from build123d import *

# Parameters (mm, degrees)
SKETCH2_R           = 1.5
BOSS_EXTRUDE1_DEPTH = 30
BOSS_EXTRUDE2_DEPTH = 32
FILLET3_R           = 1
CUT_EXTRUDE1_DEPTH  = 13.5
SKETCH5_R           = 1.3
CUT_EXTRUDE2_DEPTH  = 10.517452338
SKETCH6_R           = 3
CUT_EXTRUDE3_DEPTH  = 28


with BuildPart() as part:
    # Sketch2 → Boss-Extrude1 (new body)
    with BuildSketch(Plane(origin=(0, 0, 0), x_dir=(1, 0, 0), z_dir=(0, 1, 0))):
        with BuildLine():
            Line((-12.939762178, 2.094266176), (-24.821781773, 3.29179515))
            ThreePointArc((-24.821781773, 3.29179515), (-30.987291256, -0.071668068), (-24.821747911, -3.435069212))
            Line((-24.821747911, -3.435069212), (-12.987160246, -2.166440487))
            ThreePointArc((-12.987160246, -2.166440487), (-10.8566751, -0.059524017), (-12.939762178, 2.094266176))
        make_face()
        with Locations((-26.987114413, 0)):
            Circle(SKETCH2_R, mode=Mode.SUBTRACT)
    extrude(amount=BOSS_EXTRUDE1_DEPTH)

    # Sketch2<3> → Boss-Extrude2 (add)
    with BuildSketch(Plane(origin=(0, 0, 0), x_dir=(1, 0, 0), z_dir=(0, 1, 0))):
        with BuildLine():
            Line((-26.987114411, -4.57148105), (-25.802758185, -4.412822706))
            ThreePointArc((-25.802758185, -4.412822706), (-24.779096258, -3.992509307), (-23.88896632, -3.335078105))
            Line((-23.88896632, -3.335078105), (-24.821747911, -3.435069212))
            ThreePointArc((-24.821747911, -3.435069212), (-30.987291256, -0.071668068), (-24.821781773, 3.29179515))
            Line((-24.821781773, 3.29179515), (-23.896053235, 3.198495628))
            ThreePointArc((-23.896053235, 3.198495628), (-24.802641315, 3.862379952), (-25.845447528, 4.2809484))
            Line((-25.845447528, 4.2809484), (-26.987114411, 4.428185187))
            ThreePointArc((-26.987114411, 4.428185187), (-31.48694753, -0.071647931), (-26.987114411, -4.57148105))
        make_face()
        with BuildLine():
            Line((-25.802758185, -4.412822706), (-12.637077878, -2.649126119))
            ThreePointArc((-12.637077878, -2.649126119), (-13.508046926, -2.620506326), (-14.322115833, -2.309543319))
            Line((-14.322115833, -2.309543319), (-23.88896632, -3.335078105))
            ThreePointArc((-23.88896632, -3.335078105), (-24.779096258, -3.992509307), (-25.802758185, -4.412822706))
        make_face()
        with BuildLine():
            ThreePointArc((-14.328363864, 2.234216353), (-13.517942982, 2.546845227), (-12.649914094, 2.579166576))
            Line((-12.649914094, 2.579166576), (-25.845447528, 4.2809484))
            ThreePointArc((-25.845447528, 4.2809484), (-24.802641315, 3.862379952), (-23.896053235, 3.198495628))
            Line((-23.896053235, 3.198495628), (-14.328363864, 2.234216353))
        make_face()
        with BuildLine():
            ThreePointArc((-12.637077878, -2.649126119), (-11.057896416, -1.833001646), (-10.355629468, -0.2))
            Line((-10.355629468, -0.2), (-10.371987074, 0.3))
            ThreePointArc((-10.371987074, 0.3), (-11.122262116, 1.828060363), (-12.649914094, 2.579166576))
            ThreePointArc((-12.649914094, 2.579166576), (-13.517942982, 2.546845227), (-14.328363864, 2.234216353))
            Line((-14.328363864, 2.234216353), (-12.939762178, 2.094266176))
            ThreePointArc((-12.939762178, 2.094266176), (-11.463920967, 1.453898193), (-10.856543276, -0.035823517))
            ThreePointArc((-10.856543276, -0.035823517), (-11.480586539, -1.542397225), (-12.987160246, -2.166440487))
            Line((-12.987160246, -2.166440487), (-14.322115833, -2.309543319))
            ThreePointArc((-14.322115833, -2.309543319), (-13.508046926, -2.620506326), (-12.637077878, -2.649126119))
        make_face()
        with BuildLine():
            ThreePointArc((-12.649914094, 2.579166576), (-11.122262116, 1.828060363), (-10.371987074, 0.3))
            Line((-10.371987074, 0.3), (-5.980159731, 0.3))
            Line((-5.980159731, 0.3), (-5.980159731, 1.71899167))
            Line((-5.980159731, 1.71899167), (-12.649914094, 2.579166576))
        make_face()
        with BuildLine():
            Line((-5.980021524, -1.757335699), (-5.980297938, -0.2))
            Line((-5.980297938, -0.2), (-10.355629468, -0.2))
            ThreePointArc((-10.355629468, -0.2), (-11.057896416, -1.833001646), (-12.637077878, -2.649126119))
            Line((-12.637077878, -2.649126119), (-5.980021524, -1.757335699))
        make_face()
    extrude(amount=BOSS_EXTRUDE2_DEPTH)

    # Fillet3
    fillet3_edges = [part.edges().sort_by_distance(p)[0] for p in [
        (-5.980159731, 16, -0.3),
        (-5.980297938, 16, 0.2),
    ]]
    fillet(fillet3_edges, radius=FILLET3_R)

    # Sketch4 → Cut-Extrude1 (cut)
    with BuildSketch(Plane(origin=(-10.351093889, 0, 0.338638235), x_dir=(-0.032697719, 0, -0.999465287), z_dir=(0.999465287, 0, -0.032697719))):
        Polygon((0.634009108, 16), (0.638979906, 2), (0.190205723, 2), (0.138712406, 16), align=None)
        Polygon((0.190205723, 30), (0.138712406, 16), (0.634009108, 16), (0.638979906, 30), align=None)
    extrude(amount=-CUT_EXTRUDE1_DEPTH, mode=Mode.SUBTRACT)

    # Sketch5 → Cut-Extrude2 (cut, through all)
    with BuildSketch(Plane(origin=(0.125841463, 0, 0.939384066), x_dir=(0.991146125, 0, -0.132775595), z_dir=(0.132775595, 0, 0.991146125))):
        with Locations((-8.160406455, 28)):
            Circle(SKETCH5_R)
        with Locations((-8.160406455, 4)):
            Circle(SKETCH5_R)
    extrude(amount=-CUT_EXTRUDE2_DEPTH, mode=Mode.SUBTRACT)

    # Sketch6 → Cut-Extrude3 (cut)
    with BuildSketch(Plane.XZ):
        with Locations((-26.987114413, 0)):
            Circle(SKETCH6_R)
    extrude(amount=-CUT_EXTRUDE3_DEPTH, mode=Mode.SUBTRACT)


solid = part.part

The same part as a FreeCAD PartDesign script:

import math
import FreeCAD as App
import Part
import Sketcher
from FreeCAD import Vector


def edges_at(feature, points):
    """Names of the edges that pass closest to the given points."""
    edges = feature.Shape.Edges
    near = lambda p: min(range(len(edges)), key=lambda i: edges[i].distToShape(Part.Vertex(*p))[0])
    return sorted({f"Edge{near(p) + 1}" for p in points})

doc = App.newDocument("Part")
body = doc.addObject("PartDesign::Body", "Body")

sketch1 = body.newObject("Sketcher::SketchObject", "Sketch")
sketch1.AttachmentSupport = (doc.getObject("XZ_Plane"), [""])
sketch1.MapMode = "FlatFace"
sketch1.addGeometry([
    Part.LineSegment(Vector(-12.9, -2.1, 0), Vector(-24.8, -3.3, 0)),
    Part.ArcOfCircle(Part.Circle(Vector(-27, 0.1, 0), Vector(0, 0, 1), 4), math.radians(57), math.radians(303)),
    Part.LineSegment(Vector(-24.8, 3.4, 0), Vector(-13, 2.2, 0)),
    Part.ArcOfCircle(Part.Circle(Vector(-13, 0, 0), Vector(0, 0, 1), 2.1), math.radians(-89), math.radians(90)),
    Part.Circle(Vector(-27, 0, 0), Vector(0, 0, 1), 1.5),
], False)
sketch1.addConstraint([
    Sketcher.Constraint("Coincident", 0, 2, 1, 2),
    Sketcher.Constraint("Coincident", 1, 1, 2, 1),
    Sketcher.Constraint("Coincident", 2, 2, 3, 2),
    Sketcher.Constraint("Coincident", 3, 1, 0, 1),
    Sketcher.Constraint("PointOnObject", 4, 3, -1),
    Sketcher.Constraint("Vertical", 1, 3, 4, 3),
    Sketcher.Constraint("Vertical", 3, 3, 2, 2),
    Sketcher.Constraint("Diameter", 4, 3.0),
    Sketcher.Constraint("Radius", 1, 4.000177),
    Sketcher.Constraint("Radius", 3, 2.130617),
    Sketcher.Constraint("DistanceX", 3, 3, 3, 1, 0.047398),
    Sketcher.Constraint("Distance", 2, 11.90239),
    Sketcher.Constraint("DistanceX", 3, 3, -1, 1, 12.98716),
    Sketcher.Constraint("DistanceX", 0, 2, -1, 1, 24.821782),
    Sketcher.Constraint("DistanceY", -1, 1, 1, 1, 3.435069),
    Sketcher.Constraint("DistanceY", -1, 1, 2, 2, 2.16644),
    Sketcher.Constraint("DistanceY", 0, 2, 3, 3, 3.327619),
])
pad1 = body.newObject("PartDesign::Pad", "Pad")
pad1.Profile = sketch1
pad1.Length = 30
pad1.Reversed = True

sketch2 = body.newObject("Sketcher::SketchObject", "Sketch001")
sketch2.AttachmentSupport = (doc.getObject("XZ_Plane"), [""])
sketch2.MapMode = "FlatFace"
sketch2.addGeometry([
    Part.LineSegment(Vector(-26.987114, 4.571481, 0), Vector(-25.802758, 4.412823, 0)),
    Part.LineSegment(Vector(-25.802758, 4.412823, 0), Vector(-12.637078, 2.649126, 0)),
    Part.LineSegment(Vector(-12.637078, 2.649126, 0), Vector(-5.980022, 1.757336, 0)),
    Part.LineSegment(Vector(-5.980022, 1.757336, 0), Vector(-5.980298, 0.2, 0)),
    Part.LineSegment(Vector(-5.980298, 0.2, 0), Vector(-10.355629, 0.2, 0)),
    Part.LineSegment(Vector(-10.355629, 0.2, 0), Vector(-10.371987, -0.3, 0)),
    Part.LineSegment(Vector(-10.371987, -0.3, 0), Vector(-5.98016, -0.3, 0)),
    Part.LineSegment(Vector(-5.98016, -0.3, 0), Vector(-5.98016, -1.718992, 0)),
    Part.LineSegment(Vector(-5.98016, -1.718992, 0), Vector(-12.649914, -2.579167, 0)),
    Part.LineSegment(Vector(-12.649914, -2.579167, 0), Vector(-25.845448, -4.280948, 0)),
    Part.LineSegment(Vector(-25.845448, -4.280948, 0), Vector(-26.987114, -4.428185, 0)),
    Part.ArcOfCircle(Part.Circle(Vector(-26.987114, 0.071648, 0), Vector(0, 0, 1), 4.499833), math.radians(90), math.radians(270)),
    Part.LineSegment(Vector(-14.322116, 2.309543, 0), Vector(-23.888966, 3.335078, 0)),
    Part.LineSegment(Vector(-23.888966, 3.335078, 0), Vector(-24.821748, 3.435069, 0)),
    Part.ArcOfCircle(Part.Circle(Vector(-26.987114, 0.071648, 0), Vector(0, 0, 1), 4.000177), math.radians(57.226615), math.radians(302.772808)),
    Part.LineSegment(Vector(-24.821782, -3.291795, 0), Vector(-23.896053, -3.198496, 0)),
    Part.LineSegment(Vector(-23.896053, -3.198496, 0), Vector(-14.328364, -2.234216, 0)),
    Part.LineSegment(Vector(-14.328364, -2.234216, 0), Vector(-12.939762, -2.094266, 0)),
    Part.ArcOfCircle(Part.Circle(Vector(-12.98716, 0.035824, 0), Vector(0, 0, 1), 2.130617), math.radians(-88.725283), math.radians(0)),
    Part.ArcOfCircle(Part.Circle(Vector(-12.98716, 0.035824, 0), Vector(0, 0, 1), 2.130617), math.radians(0), math.radians(90)),
    Part.LineSegment(Vector(-12.98716, 2.16644, 0), Vector(-14.322116, 2.309543, 0)),
], False)
sketch2.addConstraint([
    Sketcher.Constraint("Coincident", 0, 2, 1, 1),
    Sketcher.Constraint("Coincident", 1, 2, 2, 1),
    Sketcher.Constraint("Coincident", 2, 2, 3, 1),
    Sketcher.Constraint("Coincident", 3, 2, 4, 1),
    Sketcher.Constraint("Coincident", 4, 2, 5, 1),
    Sketcher.Constraint("Coincident", 5, 2, 6, 1),
    Sketcher.Constraint("Coincident", 6, 2, 7, 1),
    Sketcher.Constraint("Coincident", 7, 2, 8, 1),
    Sketcher.Constraint("Coincident", 8, 2, 9, 1),
    Sketcher.Constraint("Coincident", 9, 2, 10, 1),
    Sketcher.Constraint("Coincident", 10, 2, 11, 2),
    Sketcher.Constraint("Coincident", 11, 1, 0, 1),
    Sketcher.Constraint("Coincident", 12, 2, 13, 1),
    Sketcher.Constraint("Coincident", 13, 2, 14, 1),
    Sketcher.Constraint("Coincident", 14, 2, 15, 1),
    Sketcher.Constraint("Coincident", 15, 2, 16, 1),
    Sketcher.Constraint("Coincident", 16, 2, 17, 1),
    Sketcher.Constraint("Coincident", 17, 2, 18, 1),
    Sketcher.Constraint("Coincident", 18, 2, 19, 1),
    Sketcher.Constraint("Coincident", 19, 2, 20, 1),
    Sketcher.Constraint("Coincident", 20, 2, 12, 1),
    Sketcher.Constraint("Horizontal", 4),
    Sketcher.Constraint("Horizontal", 6),
    Sketcher.Constraint("Vertical", 7),
    Sketcher.Constraint("Coincident", 14, 3, 11, 3),
    Sketcher.Constraint("Coincident", 19, 3, 18, 3),
    Sketcher.Constraint("DistanceY", -1, 1, 3, 2, 0.2),
    Sketcher.Constraint("DistanceY", 5, 2, -1, 1, 0.3),
    Sketcher.Constraint("Radius", 11, 4.499833),
    Sketcher.Constraint("Radius", 14, 4.000177),
    Sketcher.Constraint("Radius", 18, 2.130617),
    Sketcher.Constraint("DistanceY", 18, 3, 0, 2, 4.376999),
    Sketcher.Constraint("DistanceX", 19, 3, 6, 2, 7.007001),
    Sketcher.Constraint("DistanceX", 4, 2, 4, 1, 4.375332),
    Sketcher.Constraint("DistanceY", 7, 2, 7, 1, 1.418992),
    Sketcher.Constraint("DistanceX", 10, 2, 8, 2, 14.3372),
    Sketcher.Constraint("DistanceY", 14, 2, 15, 2, 0.0933),
    Sketcher.Constraint("DistanceY", 8, 2, 17, 2, 0.4849),
    Sketcher.Constraint("DistanceX", 16, 2, 17, 2, 1.388602),
    Sketcher.Constraint("DistanceX", 19, 3, 17, 2, 0.047398),
    Sketcher.Constraint("Distance", 1, 13.283289),
    Sketcher.Constraint("Distance", 12, 9.62166),
    Sketcher.Constraint("Distance", 15, 0.930418),
    Sketcher.Constraint("Distance", 16, 9.616159),
    Sketcher.Constraint("DistanceX", 6, 1, 6, 2, 4.391827),
    Sketcher.Constraint("DistanceX", 18, 3, -1, 1, 12.98716),
    Sketcher.Constraint("DistanceX", 0, 2, -1, 1, 25.802758),
    Sketcher.Constraint("DistanceX", 2, 2, -1, 1, 5.980022),
    Sketcher.Constraint("DistanceX", 4, 2, -1, 1, 10.355629),
    Sketcher.Constraint("DistanceY", 9, 2, -1, 1, 4.280948),
    Sketcher.Constraint("DistanceY", -1, 1, 11, 1, 4.571481),
    Sketcher.Constraint("DistanceY", -1, 1, 12, 2, 3.335078),
    Sketcher.Constraint("DistanceY", -1, 1, 13, 2, 3.435069),
    Sketcher.Constraint("DistanceX", 14, 2, -1, 1, 24.821782),
    Sketcher.Constraint("DistanceX", 19, 2, -1, 1, 12.98716),
    Sketcher.Constraint("DistanceY", -1, 1, 19, 2, 2.16644),
    Sketcher.Constraint("DistanceX", 0, 2, 1, 2, 13.16568),
    Sketcher.Constraint("DistanceY", 2, 2, 1, 2, 0.89179),
    Sketcher.Constraint("DistanceX", 9, 2, 0, 2, 0.042689),
    Sketcher.Constraint("DistanceX", 0, 2, 12, 2, 1.913792),
    Sketcher.Constraint("DistanceX", 11, 1, 12, 2, 3.098148),
    Sketcher.Constraint("DistanceX", 11, 3, 12, 2, 3.098148),
    Sketcher.Constraint("DistanceX", 10, 2, 15, 2, 3.091061),
    Sketcher.Constraint("DistanceY", 17, 2, 18, 2, 2.13009),
    Sketcher.Constraint("DistanceY", 18, 3, 20, 2, 2.27372),
])
pad2 = body.newObject("PartDesign::Pad", "Pad001")
pad2.Profile = sketch2
pad2.Length = 32
pad2.Reversed = True
doc.recompute()

fillet = body.newObject("PartDesign::Fillet", "Fillet")
fillet.Base = (pad2, edges_at(pad2, [(-5.98, 16, -0.3), (-5.98, 16, 0.2)]))
fillet.Radius = 1

sketch3 = body.newObject("Sketcher::SketchObject", "Sketch002")
sketch3.Placement = App.Placement(Vector(-10.351094, 0, 0.338638), App.Rotation(Vector(-0.032697719, 0, -0.999465287), Vector(0, 1.000000001, 0), Vector(0.999465287, 0, -0.032697719), "ZXY"))
sketch3.addGeometry([
    Part.LineSegment(Vector(0.64, 2, 0), Vector(0.63, 16, 0)),
    Part.LineSegment(Vector(0.63, 16, 0), Vector(0.64, 30, 0)),
    Part.LineSegment(Vector(0.64, 30, 0), Vector(0.19, 30, 0)),
    Part.LineSegment(Vector(0.19, 30, 0), Vector(0.14, 16, 0)),
    Part.LineSegment(Vector(0.14, 16, 0), Vector(0.19, 2, 0)),
    Part.LineSegment(Vector(0.19, 2, 0), Vector(0.64, 2, 0)),
], False)
sketch3.addConstraint([
    Sketcher.Constraint("Coincident", 0, 2, 1, 1),
    Sketcher.Constraint("Coincident", 1, 2, 2, 1),
    Sketcher.Constraint("Coincident", 2, 2, 3, 1),
    Sketcher.Constraint("Coincident", 3, 2, 4, 1),
    Sketcher.Constraint("Coincident", 4, 2, 5, 1),
    Sketcher.Constraint("Coincident", 5, 2, 0, 1),
    Sketcher.Constraint("Horizontal", 2),
    Sketcher.Constraint("Horizontal", 5),
    Sketcher.Constraint("Horizontal", 0, 2, 3, 2),
    Sketcher.Constraint("Vertical", 2, 2, 4, 2),
    Sketcher.Constraint("Vertical", 1, 2, 5, 2),
    Sketcher.Constraint("Equal", 0, 1),
    Sketcher.Constraint("Distance", 0, 14.000001),
    Sketcher.Constraint("DistanceY", -1, 1, 0, 2, 16.0),
    Sketcher.Constraint("DistanceX", 2, 2, 2, 1, 0.448774),
    Sketcher.Constraint("DistanceX", -1, 1, 0, 2, 0.634009),
    Sketcher.Constraint("DistanceX", -1, 1, 1, 2, 0.63898),
    Sketcher.Constraint("DistanceX", -1, 1, 3, 2, 0.138712),
])
pocket1 = body.newObject("PartDesign::Pocket", "Pocket")
pocket1.Profile = sketch3
pocket1.Length = 13.5

sketch4 = body.newObject("Sketcher::SketchObject", "Sketch003")
sketch4.Placement = App.Placement(Vector(0.125841, 0, 0.939384), App.Rotation(Vector(0.991146125, 0, -0.132775595), Vector(0, 1, 0), Vector(0.132775595, 0, 0.991146125), "ZXY"))
sketch4.addGeometry([
    Part.Circle(Vector(-8.2, 28, 0), Vector(0, 0, 1), 1.3),
    Part.Circle(Vector(-8.2, 4, 0), Vector(0, 0, 1), 1.3),
], False)
sketch4.addConstraint([
    Sketcher.Constraint("Equal", 0, 1),
    Sketcher.Constraint("Vertical", 0, 3, 1, 3),
    Sketcher.Constraint("Diameter", 0, 2.6),
    Sketcher.Constraint("DistanceY", -1, 1, 0, 3, 28.0),
    Sketcher.Constraint("DistanceY", -1, 1, 1, 3, 4.0),
    Sketcher.Constraint("DistanceX", 0, 3, -1, 1, 8.160406),
])
pocket2 = body.newObject("PartDesign::Pocket", "Pocket001")
pocket2.Profile = sketch4
pocket2.Type = "ThroughAll"

sketch5 = body.newObject("Sketcher::SketchObject", "Sketch004")
sketch5.AttachmentSupport = (doc.getObject("XZ_Plane"), [""])
sketch5.MapMode = "FlatFace"
sketch5.addGeometry(Part.Circle(Vector(-27, 0, 0), Vector(0, 0, 1), 3), False)
sketch5.addConstraint([
    Sketcher.Constraint("PointOnObject", 0, 3, -1),
    Sketcher.Constraint("Diameter", 0, 6.0),
    Sketcher.Constraint("DistanceX", 0, 3, -1, 1, 26.987114),
])
pocket3 = body.newObject("PartDesign::Pocket", "Pocket002")
pocket3.Profile = sketch5
pocket3.Length = 28

doc.recompute()
